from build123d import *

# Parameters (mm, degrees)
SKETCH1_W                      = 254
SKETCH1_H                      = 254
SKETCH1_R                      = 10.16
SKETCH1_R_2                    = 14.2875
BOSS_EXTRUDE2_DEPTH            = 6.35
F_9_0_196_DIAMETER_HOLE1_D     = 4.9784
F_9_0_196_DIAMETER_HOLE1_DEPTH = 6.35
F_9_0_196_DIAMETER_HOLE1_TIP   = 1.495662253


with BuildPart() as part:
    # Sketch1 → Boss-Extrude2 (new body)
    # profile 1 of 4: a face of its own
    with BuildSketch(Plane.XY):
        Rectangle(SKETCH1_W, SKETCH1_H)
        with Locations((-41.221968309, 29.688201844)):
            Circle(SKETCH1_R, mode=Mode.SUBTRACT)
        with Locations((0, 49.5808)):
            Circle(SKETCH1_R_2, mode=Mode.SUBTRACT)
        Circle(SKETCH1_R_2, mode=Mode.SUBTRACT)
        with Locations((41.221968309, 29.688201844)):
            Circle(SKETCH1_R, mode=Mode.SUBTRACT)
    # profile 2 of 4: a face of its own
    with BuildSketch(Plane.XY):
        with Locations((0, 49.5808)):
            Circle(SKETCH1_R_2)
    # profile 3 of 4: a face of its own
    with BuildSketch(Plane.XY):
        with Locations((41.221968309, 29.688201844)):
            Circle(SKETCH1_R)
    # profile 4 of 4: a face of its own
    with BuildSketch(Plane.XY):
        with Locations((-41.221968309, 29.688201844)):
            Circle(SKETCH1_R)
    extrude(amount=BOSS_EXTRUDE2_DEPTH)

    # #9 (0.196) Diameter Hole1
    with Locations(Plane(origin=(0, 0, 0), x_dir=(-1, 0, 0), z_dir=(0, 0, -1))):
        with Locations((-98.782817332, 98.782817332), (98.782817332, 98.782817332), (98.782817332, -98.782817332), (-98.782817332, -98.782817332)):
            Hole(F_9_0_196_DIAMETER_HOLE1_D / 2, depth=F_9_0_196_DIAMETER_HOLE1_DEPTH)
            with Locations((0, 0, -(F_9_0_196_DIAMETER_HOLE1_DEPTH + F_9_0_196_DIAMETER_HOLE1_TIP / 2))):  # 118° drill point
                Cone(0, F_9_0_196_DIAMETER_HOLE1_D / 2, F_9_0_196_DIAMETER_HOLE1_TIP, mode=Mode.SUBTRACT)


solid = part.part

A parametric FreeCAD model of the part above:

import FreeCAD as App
import Part
import Sketcher
from FreeCAD import Vector
Q = App.Units.Quantity

doc = App.newDocument("Part")
params = doc.addObject("Spreadsheet::Sheet", "Params")
for row, (alias, value) in enumerate([
    ("sketch1_width", "10 in"),
    ("sketch1_diameter", "1.125 in"),
    ("pad1_length", "0.25 in"),
    ("sketch2_diameter", "0.196 in"),
    ("hole_diameter", "0.196 in"),
    ("hole_depth", "0.25 in"),
], start=1):
    params.set(f"A{row}", alias)
    params.set(f"B{row}", "=" + value)
    params.setAlias(f"B{row}", alias)

body = doc.addObject("PartDesign::Body", "Body")

sketch1 = body.newObject("Sketcher::SketchObject", "Sketch")
sketch1.AttachmentSupport = (doc.getObject("XY_Plane"), [""])
sketch1.MapMode = "FlatFace"
sketch1.addGeometry([
    Part.LineSegment(Vector(-127, 127, 0), Vector(-127, -127, 0)),
    Part.LineSegment(Vector(-127, -127, 0), Vector(127, -127, 0)),
    Part.LineSegment(Vector(127, -127, 0), Vector(127, 127, 0)),
    Part.LineSegment(Vector(127, 127, 0), Vector(-127, 127, 0)),
    Part.Circle(Vector(0, 0, 0), Vector(0, 0, 1), 14),
], False)
sketch1.addConstraint([
    Sketcher.Constraint("Coincident", 0, 2, 1, 1),
    Sketcher.Constraint("Coincident", 1, 2, 2, 1),
    Sketcher.Constraint("Coincident", 2, 2, 3, 1),
    Sketcher.Constraint("Coincident", 3, 2, 0, 1),
    Sketcher.Constraint("Vertical", 0),
    Sketcher.Constraint("Horizontal", 1),
    Sketcher.Constraint("Vertical", 2),
    Sketcher.Constraint("Horizontal", 3),
    Sketcher.Constraint("Coincident", 4, 3, -1, 1),
    Sketcher.Constraint("Symmetric", 0, 2, 2, 2, -1, 1),
    Sketcher.Constraint("Equal", 3, 0),
    Sketcher.Constraint("DistanceX", 1, 1, 1, 2, Q("10 in")),
    Sketcher.Constraint("Diameter", 4, Q("1.125 in")),
])
sketch1.setExpression("Constraints[11]", "Params.sketch1_width")
sketch1.setExpression("Constraints[12]", "Params.sketch1_diameter")
pad1 = body.newObject("PartDesign::Pad", "Pad")
pad1.Profile = sketch1
pad1.setExpression("Length", "Params.pad1_length")

sketch2 = body.newObject("Sketcher::SketchObject", "Sketch001")
sketch2.AttachmentSupport = (doc.getObject("XY_Plane"), [""])
sketch2.MapMode = "FlatFace"
sketch2.addGeometry([
    Part.Circle(Vector(98.8, 98.8, 0), Vector(0, 0, 1), 2.5),
    Part.Circle(Vector(-98.8, 98.8, 0), Vector(0, 0, 1), 2.5),
    Part.Circle(Vector(-98.8, -98.8, 0), Vector(0, 0, 1), 2.5),
    Part.Circle(Vector(98.8, -98.8, 0), Vector(0, 0, 1), 2.5),
], False)
sketch2.addConstraint([
    Sketcher.Constraint("Equal", 0, 1),
    Sketcher.Constraint("Equal", 1, 2),
    Sketcher.Constraint("Equal", 2, 3),
    Sketcher.Constraint("Symmetric", 0, 3, 2, 3, -1, 1),
    Sketcher.Constraint("Symmetric", 1, 3, 3, 3, -1, 1),
    Sketcher.Constraint("Symmetric", 0, 3, 1, 3, -2),
    Sketcher.Constraint("Diameter", 0, Q("0.196 in")),
    Sketcher.Constraint("DistanceX", -1, 1, 0, 3, 98.782817),
    Sketcher.Constraint("DistanceY", -1, 1, 0, 3, 98.782817),
])
sketch2.setExpression("Constraints[6]", "Params.sketch2_diameter")
doc.recompute()
hole = body.newObject("PartDesign::Hole", "Hole")
hole.Profile = sketch2
hole.ThreadType = "None"
hole.setExpression("Diameter", "Params.hole_diameter")
hole.DepthType = "Dimension"
hole.setExpression("Depth", "Params.hole_depth")
hole.DrillPoint = "Angled"
hole.DrillPointAngle = 118
hole.Reversed = True

doc.recompute()
